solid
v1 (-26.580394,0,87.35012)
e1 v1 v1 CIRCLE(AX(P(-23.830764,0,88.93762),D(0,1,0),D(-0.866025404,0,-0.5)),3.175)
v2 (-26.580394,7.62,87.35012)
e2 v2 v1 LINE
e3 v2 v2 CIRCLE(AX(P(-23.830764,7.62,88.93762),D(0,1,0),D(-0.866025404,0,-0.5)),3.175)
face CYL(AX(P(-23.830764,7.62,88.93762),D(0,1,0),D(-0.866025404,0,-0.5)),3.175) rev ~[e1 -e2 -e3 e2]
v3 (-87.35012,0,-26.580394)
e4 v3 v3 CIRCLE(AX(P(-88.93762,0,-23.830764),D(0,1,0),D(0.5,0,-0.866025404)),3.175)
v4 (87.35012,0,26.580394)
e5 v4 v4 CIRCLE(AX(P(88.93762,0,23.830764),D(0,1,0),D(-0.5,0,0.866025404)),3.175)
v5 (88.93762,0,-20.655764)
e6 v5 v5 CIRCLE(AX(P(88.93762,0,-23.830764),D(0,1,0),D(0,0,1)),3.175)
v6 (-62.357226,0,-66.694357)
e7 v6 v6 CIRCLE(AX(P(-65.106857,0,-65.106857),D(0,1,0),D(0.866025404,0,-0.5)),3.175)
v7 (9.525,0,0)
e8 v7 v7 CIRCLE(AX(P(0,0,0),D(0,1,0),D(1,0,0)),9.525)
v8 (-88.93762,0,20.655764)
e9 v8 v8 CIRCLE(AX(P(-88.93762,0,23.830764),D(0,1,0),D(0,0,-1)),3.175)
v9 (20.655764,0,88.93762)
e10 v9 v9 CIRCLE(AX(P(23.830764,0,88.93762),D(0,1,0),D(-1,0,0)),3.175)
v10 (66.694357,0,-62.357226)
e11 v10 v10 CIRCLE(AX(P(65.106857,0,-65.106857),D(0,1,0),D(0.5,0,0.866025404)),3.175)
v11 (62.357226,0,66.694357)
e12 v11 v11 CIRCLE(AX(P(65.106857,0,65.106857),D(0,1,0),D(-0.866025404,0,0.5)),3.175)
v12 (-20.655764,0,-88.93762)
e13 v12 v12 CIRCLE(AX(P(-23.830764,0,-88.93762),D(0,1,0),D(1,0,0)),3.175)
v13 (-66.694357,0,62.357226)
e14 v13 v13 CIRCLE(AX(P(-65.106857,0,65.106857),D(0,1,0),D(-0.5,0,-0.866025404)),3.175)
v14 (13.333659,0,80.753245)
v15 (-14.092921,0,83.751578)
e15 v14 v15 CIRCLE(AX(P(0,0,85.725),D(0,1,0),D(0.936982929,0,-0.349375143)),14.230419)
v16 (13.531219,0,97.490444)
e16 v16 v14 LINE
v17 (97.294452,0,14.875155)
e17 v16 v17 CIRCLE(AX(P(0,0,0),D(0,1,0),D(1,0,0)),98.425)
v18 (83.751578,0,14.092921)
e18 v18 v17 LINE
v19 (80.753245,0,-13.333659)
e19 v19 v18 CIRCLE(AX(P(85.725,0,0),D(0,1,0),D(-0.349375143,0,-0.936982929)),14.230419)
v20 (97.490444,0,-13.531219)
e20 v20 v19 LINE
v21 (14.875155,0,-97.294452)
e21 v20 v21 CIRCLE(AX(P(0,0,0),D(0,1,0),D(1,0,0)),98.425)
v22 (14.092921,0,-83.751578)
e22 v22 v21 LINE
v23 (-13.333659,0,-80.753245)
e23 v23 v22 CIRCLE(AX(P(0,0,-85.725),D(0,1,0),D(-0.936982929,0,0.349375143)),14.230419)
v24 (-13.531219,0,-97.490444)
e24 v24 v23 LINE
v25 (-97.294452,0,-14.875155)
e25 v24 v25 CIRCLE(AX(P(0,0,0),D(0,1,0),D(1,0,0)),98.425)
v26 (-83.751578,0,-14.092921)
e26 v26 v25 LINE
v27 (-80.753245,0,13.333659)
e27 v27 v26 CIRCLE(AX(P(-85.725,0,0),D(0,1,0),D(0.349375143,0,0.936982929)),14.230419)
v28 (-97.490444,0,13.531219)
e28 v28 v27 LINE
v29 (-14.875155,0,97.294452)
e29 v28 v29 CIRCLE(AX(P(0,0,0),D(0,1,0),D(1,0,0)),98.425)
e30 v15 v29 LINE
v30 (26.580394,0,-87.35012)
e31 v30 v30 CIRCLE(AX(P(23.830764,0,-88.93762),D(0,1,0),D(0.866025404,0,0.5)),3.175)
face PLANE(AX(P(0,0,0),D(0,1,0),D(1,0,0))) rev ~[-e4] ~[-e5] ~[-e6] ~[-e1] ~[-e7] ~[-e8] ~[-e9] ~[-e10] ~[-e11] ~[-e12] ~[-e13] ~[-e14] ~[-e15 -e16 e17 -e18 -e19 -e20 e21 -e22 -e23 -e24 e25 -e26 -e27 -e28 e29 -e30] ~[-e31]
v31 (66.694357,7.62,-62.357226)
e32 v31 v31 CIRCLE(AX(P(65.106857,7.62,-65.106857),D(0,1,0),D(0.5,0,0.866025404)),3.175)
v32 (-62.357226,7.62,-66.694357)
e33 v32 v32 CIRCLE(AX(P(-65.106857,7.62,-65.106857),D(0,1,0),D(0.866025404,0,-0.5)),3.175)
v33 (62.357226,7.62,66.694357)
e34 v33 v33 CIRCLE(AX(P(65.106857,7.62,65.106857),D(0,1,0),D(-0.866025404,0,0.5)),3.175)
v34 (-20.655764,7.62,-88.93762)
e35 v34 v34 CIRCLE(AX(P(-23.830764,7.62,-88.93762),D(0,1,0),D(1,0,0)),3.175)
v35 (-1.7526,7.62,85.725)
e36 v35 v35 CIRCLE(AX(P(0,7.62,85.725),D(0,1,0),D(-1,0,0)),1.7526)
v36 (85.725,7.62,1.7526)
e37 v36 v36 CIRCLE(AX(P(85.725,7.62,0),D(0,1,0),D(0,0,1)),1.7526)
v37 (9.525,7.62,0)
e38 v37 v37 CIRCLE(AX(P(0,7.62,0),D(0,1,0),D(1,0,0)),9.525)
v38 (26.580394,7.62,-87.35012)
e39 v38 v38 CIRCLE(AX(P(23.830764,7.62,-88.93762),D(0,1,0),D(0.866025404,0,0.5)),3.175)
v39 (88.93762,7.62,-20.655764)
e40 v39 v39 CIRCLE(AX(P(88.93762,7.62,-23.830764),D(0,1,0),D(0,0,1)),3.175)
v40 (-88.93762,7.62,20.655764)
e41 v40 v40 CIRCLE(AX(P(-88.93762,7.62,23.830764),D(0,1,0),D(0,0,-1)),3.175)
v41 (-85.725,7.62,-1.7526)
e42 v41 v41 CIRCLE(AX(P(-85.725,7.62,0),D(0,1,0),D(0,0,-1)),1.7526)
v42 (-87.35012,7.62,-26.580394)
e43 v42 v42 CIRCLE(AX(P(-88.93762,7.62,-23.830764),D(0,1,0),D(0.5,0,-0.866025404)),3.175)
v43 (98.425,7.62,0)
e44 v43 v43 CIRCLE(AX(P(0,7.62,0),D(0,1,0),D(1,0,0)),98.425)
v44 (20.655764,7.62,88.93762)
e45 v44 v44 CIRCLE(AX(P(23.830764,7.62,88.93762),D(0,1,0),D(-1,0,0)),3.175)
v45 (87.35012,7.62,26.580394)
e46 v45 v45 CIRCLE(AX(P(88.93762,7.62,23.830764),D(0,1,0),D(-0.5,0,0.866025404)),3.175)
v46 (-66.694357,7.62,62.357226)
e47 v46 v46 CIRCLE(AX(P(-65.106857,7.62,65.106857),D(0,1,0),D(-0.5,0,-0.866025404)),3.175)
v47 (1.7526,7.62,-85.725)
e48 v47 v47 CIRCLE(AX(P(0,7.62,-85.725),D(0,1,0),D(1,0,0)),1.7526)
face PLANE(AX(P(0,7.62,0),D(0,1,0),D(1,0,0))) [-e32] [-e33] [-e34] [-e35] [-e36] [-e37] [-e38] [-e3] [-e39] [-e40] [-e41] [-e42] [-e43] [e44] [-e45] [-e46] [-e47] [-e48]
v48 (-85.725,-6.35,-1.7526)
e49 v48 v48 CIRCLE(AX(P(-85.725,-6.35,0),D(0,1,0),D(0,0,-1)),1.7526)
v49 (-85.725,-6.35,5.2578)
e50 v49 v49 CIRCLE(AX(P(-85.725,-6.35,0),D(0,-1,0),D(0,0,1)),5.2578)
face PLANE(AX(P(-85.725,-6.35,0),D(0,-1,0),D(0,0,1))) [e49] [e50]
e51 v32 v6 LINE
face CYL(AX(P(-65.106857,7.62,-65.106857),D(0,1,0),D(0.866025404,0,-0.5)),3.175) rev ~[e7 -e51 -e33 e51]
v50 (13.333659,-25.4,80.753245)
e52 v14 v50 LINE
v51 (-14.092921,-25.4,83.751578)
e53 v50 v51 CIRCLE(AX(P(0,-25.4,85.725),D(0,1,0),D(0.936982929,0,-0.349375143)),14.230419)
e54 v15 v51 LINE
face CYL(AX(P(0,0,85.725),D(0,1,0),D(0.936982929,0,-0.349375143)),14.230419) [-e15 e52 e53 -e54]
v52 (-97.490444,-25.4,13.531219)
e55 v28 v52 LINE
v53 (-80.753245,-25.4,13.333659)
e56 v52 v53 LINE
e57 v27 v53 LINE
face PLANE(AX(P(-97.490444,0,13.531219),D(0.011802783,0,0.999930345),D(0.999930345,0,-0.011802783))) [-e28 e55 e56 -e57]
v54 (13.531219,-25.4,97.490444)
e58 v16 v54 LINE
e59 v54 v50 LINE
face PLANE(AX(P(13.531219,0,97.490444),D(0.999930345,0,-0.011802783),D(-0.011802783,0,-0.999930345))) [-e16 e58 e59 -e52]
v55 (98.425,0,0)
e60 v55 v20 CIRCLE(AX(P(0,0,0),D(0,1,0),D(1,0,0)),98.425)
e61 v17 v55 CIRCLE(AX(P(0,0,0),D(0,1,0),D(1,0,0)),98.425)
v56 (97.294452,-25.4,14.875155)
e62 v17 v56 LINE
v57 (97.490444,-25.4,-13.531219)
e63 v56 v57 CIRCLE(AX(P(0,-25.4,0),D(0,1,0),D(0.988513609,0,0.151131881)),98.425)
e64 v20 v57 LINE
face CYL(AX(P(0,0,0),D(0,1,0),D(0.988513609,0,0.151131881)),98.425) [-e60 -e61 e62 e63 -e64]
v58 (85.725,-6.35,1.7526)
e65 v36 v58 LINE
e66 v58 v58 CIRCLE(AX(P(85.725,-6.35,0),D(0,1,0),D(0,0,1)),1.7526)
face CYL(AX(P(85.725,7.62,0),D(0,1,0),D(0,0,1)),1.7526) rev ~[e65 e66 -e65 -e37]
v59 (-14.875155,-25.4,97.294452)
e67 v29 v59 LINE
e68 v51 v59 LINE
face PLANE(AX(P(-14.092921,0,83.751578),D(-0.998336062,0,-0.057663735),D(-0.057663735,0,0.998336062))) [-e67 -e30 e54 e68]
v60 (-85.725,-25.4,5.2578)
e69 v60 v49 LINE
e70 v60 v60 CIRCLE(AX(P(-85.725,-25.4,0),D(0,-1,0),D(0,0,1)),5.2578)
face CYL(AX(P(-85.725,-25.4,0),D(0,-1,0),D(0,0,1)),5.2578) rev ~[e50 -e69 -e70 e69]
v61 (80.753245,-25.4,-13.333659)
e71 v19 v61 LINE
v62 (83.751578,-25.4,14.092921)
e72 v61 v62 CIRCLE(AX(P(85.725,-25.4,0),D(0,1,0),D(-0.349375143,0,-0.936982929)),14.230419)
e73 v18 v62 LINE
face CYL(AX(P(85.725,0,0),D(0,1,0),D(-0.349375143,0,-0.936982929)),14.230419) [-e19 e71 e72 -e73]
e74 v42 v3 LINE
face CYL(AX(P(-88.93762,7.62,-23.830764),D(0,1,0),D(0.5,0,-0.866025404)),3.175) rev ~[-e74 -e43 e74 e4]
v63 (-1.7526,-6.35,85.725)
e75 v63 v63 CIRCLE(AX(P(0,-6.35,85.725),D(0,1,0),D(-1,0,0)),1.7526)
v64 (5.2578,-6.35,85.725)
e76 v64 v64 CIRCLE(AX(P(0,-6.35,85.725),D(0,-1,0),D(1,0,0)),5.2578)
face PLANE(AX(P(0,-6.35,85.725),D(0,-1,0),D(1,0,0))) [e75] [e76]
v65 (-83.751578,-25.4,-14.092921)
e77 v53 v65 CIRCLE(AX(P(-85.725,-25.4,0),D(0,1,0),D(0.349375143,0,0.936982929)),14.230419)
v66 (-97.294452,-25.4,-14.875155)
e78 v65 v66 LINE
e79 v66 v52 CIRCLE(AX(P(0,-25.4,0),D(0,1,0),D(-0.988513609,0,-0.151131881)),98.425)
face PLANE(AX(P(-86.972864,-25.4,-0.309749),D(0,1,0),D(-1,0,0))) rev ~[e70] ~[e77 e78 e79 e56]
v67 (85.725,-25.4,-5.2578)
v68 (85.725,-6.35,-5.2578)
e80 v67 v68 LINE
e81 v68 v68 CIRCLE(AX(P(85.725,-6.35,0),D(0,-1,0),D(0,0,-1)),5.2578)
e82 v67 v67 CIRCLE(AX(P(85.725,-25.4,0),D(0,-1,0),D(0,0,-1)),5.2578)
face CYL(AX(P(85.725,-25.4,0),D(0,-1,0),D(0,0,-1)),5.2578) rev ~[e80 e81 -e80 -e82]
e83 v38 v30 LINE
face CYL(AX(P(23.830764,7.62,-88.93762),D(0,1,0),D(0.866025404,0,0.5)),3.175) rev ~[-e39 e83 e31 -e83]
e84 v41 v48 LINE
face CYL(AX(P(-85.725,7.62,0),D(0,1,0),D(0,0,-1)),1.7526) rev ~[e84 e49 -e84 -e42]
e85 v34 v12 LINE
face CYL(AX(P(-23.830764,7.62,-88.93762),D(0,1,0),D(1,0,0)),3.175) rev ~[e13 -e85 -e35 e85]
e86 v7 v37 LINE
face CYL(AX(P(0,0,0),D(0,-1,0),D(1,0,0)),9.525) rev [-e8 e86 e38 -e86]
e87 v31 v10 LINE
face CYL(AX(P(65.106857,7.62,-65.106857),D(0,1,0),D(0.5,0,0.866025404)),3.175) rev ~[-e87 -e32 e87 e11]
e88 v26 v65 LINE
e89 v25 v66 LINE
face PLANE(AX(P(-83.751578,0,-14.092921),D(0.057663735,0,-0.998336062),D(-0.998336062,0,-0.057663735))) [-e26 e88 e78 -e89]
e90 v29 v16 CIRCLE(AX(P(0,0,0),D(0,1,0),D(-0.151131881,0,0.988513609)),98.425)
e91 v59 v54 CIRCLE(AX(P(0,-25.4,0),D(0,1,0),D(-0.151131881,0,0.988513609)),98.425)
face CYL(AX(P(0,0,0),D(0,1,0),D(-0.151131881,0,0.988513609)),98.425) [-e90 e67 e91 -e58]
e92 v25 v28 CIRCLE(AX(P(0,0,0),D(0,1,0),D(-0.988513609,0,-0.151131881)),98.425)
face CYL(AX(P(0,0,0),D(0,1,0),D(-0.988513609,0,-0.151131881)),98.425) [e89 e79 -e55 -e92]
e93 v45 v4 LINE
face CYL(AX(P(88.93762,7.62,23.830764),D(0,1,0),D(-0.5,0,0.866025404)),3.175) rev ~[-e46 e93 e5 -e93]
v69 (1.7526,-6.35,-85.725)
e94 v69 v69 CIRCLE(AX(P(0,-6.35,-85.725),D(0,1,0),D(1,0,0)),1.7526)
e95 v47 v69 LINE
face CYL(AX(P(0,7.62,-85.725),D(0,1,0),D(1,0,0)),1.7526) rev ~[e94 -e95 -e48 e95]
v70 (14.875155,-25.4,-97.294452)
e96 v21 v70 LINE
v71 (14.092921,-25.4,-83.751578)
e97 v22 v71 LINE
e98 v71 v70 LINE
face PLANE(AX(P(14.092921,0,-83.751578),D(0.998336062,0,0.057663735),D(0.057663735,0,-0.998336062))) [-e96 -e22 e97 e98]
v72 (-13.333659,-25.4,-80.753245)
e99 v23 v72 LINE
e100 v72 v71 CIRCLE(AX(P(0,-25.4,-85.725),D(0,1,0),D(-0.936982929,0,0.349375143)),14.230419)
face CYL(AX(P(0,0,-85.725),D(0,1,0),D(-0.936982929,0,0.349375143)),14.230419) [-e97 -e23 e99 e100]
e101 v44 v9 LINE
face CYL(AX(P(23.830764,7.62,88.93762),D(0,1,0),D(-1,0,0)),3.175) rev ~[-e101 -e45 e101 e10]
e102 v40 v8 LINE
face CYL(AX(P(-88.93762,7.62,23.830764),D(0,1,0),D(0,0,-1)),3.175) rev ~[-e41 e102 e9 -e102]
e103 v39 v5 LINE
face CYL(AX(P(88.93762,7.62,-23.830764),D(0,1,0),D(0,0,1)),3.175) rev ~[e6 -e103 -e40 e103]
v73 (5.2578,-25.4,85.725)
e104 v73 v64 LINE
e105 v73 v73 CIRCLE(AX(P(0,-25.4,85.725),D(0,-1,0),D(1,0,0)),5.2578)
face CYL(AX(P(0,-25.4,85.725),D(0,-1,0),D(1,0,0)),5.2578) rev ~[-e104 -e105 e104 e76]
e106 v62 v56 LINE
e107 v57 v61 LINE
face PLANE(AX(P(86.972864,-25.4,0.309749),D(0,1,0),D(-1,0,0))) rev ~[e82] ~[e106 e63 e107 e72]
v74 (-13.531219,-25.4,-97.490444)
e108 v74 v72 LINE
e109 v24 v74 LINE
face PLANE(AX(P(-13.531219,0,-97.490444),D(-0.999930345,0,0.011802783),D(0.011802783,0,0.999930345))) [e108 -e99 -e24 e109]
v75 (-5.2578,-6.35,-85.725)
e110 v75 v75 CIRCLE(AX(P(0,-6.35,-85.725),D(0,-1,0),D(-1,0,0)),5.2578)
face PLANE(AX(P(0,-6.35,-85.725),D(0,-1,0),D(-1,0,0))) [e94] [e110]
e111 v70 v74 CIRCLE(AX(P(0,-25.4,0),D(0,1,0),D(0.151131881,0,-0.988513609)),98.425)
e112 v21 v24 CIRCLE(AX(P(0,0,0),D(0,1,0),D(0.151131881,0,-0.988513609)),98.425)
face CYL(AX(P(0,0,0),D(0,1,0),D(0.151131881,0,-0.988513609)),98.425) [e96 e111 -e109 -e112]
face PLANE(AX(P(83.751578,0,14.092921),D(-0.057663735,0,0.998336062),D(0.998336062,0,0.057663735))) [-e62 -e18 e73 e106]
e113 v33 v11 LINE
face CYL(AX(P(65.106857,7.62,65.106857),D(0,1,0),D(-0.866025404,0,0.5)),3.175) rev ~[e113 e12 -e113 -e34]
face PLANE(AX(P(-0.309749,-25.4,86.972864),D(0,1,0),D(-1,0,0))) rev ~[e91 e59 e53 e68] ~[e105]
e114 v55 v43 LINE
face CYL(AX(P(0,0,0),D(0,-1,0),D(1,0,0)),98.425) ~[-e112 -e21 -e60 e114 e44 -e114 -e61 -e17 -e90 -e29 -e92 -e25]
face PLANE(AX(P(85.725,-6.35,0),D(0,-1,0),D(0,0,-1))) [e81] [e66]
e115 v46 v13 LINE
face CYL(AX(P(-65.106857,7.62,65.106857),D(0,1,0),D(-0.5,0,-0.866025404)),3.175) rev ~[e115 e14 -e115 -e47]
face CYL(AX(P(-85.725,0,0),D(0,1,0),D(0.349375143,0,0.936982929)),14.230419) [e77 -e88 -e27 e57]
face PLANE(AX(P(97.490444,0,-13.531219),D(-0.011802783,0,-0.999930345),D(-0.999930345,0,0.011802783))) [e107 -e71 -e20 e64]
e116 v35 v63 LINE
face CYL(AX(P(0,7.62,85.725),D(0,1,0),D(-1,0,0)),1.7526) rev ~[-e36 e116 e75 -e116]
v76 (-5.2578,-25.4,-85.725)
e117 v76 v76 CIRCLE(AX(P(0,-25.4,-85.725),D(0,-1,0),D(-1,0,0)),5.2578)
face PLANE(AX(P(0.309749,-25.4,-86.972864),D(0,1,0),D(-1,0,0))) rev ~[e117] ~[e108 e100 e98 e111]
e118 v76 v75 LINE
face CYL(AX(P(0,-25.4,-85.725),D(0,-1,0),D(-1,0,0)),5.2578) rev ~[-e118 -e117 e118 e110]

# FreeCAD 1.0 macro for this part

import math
import FreeCAD as App
import Part
import Sketcher
Q = App.Units.Quantity

doc = App.newDocument("Part")
body = doc.addObject("PartDesign::Body", "Body")

sketch1 = body.newObject("Sketcher::SketchObject", "Sketch")
sketch1.AttachmentSupport = (doc.getObject("XZ_Plane"), [""])
sketch1.MapMode = "FlatFace"
sketch1.addGeometry([
    Part.Circle(App.Vector(0, 0, 0), App.Vector(0, 0, 1), 98),
    Part.Circle(App.Vector(0, 0, 0), App.Vector(0, 0, 1), 10),
], False)
sketch1.addConstraint([
    Sketcher.Constraint("Coincident", 0, 3, -1, 1),
    Sketcher.Constraint("Coincident", 1, 3, -1, 1),
    Sketcher.Constraint("Diameter", 0, Q("7.75 in")),
    Sketcher.Constraint("Diameter", 1, Q("0.75 in")),
])
pad1 = body.newObject("PartDesign::Pad", "Pad")
pad1.Profile = sketch1
pad1.Length = Q("0.3 in")
pad1.Reversed = True

sketch2 = body.newObject("Sketcher::SketchObject", "Sketch001")
sketch2.AttachmentSupport = (doc.getObject("XZ_Plane"), [""])
sketch2.MapMode = "FlatFace"
sketch2.addGeometry([
    Part.LineSegment(App.Vector(-15, 97, 0), App.Vector(-14, 84, 0)),
    Part.ArcOfCircle(Part.Circle(App.Vector(0, 86, 0), App.Vector(0, 0, 1), 14), math.radians(-172), math.radians(-20)),
    Part.LineSegment(App.Vector(13, 81, 0), App.Vector(14, 97, 0)),
    Part.ArcOfCircle(Part.Circle(App.Vector(0, 0, 0), App.Vector(0, 0, 1), 98), math.radians(82.1), math.radians(98.69)),
    Part.LineSegment(App.Vector(97, 15, 0), App.Vector(84, 14, 0)),
    Part.ArcOfCircle(Part.Circle(App.Vector(86, 0, 0), App.Vector(0, 0, 1), 14), math.radians(98), math.radians(250)),
    Part.LineSegment(App.Vector(81, -13, 0), App.Vector(97, -14, 0)),
    Part.ArcOfCircle(Part.Circle(App.Vector(0, 0, 0), App.Vector(0, 0, 1), 98), math.radians(-7.9), math.radians(8.69)),
    Part.LineSegment(App.Vector(15, -97, 0), App.Vector(14, -84, 0)),
    Part.ArcOfCircle(Part.Circle(App.Vector(0, -86, 0), App.Vector(0, 0, 1), 14), math.radians(8), math.radians(160)),
    Part.LineSegment(App.Vector(-13, -81, 0), App.Vector(-14, -97, 0)),
    Part.ArcOfCircle(Part.Circle(App.Vector(0, 0, 0), App.Vector(0, 0, 1), 98), math.radians(-97.9), math.radians(-81.31)),
    Part.LineSegment(App.Vector(-97, -15, 0), App.Vector(-84, -14, 0)),
    Part.ArcOfCircle(Part.Circle(App.Vector(-86, 0, 0), App.Vector(0, 0, 1), 14), math.radians(-82), math.radians(70)),
    Part.LineSegment(App.Vector(-81, 13, 0), App.Vector(-97, 14, 0)),
    Part.ArcOfCircle(Part.Circle(App.Vector(0, 0, 0), App.Vector(0, 0, 1), 98), math.radians(172.1), math.radians(188.69)),
], False)
sketch2.addConstraint([
    Sketcher.Constraint("Coincident", 0, 2, 1, 1),
    Sketcher.Constraint("Coincident", 1, 2, 2, 1),
    Sketcher.Constraint("Coincident", 2, 2, 3, 1),
    Sketcher.Constraint("Coincident", 3, 2, 0, 1),
    Sketcher.Constraint("Coincident", 4, 2, 5, 1),
    Sketcher.Constraint("Coincident", 5, 2, 6, 1),
    Sketcher.Constraint("Coincident", 6, 2, 7, 1),
    Sketcher.Constraint("Coincident", 7, 2, 4, 1),
    Sketcher.Constraint("Coincident", 8, 2, 9, 1),
    Sketcher.Constraint("Coincident", 9, 2, 10, 1),
    Sketcher.Constraint("Coincident", 10, 2, 11, 1),
    Sketcher.Constraint("Coincident", 11, 2, 8, 1),
    Sketcher.Constraint("Coincident", 12, 2, 13, 1),
    Sketcher.Constraint("Coincident", 13, 2, 14, 1),
    Sketcher.Constraint("Coincident", 14, 2, 15, 1),
    Sketcher.Constraint("Coincident", 15, 2, 12, 1),
    Sketcher.Constraint("Coincident", 3, 3, -1, 1),
    Sketcher.Constraint("Coincident", 7, 3, -1, 1),
    Sketcher.Constraint("Coincident", 11, 3, -1, 1),
    Sketcher.Constraint("Coincident", 15, 3, -1, 1),
    Sketcher.Constraint("Equal", 1, 5),
    Sketcher.Constraint("Equal", 3, 7),
    Sketcher.Constraint("Equal", 5, 9),
    Sketcher.Constraint("Equal", 7, 11),
    Sketcher.Constraint("Equal", 9, 13),
    Sketcher.Constraint("Equal", 11, 15),
    Sketcher.Constraint("Symmetric", 1, 3, 9, 3, -1, 1),
    Sketcher.Constraint("Symmetric", 5, 3, 13, 3, -1, 1),
    Sketcher.Constraint("PointOnObject", 1, 3, -2),
    Sketcher.Constraint("PointOnObject", 5, 3, -1),
    Sketcher.Constraint("Perpendicular", 0, 4),
    Sketcher.Constraint("Perpendicular", 2, 6),
    Sketcher.Constraint("Perpendicular", 4, 8),
    Sketcher.Constraint("Perpendicular", 6, 10),
    Sketcher.Constraint("Perpendicular", 8, 12),
    Sketcher.Constraint("Perpendicular", 10, 14),
    Sketcher.Constraint("Equal", 0, 4),
    Sketcher.Constraint("Equal", 2, 6),
    Sketcher.Constraint("Equal", 4, 8),
    Sketcher.Constraint("Equal", 6, 10),
    Sketcher.Constraint("Equal", 8, 12),
    Sketcher.Constraint("Equal", 10, 14),
    Sketcher.Constraint("Radius", 3, Q("3.875 in")),
    Sketcher.Constraint("DistanceY", 9, 3, 1, 3, Q("6.75 in")),
    Sketcher.Constraint("DistanceX", -1, 1, 5, 3, Q("3.375 in")),
    Sketcher.Constraint("Radius", 1, Q("14.230419 mm")),
    Sketcher.Constraint("DistanceY", 1, 2, 2, 2, Q("16.737199 mm")),
    Sketcher.Constraint("DistanceX", 0, 2, -1, 1, Q("14.092921 mm")),
    Sketcher.Constraint("DistanceX", -1, 1, 1, 2, Q("13.333659 mm")),
    Sketcher.Constraint("DistanceY", -1, 1, 3, 2, Q("97.294452 mm")),
])
pad2 = body.newObject("PartDesign::Pad", "Pad001")
pad2.Profile = sketch2
pad2.Length = Q("1 in")

sketch3 = body.newObject("Sketcher::SketchObject", "Sketch002")
sketch3.AttachmentSupport = (doc.getObject("XZ_Plane"), [""])
sketch3.MapMode = "FlatFace"
sketch3.AttachmentOffset = App.Placement(App.Vector(0, 0, 1 * 25.4), App.Rotation())
sketch3.addGeometry(Part.Circle(App.Vector(0, 86, 0), App.Vector(0, 0, 1), 5), False)
sketch3.addConstraint([
    Sketcher.Constraint("PointOnObject", 0, 3, -2),
    Sketcher.Constraint("Diameter", 0, Q("0.414 in")),
    Sketcher.Constraint("DistanceY", -1, 1, 0, 3, Q("3.375 in")),
])
pocket1 = body.newObject("PartDesign::Pocket", "Pocket")
pocket1.Profile = sketch3
pocket1.Length = Q("0.75 in")

sketch4 = body.newObject("Sketcher::SketchObject", "Sketch003")
sketch4.AttachmentSupport = (doc.getObject("XZ_Plane"), [""])
sketch4.MapMode = "FlatFace"
sketch4.AttachmentOffset = App.Placement(App.Vector(0, 0, -0.3 * 25.4), App.Rotation())
sketch4.addGeometry(Part.Circle(App.Vector(-23.8, -88.9, 0), App.Vector(0, 0, 1), 3.2), False)
sketch4.addConstraint([
    Sketcher.Constraint("Diameter", 0, Q("0.25 in")),
    Sketcher.Constraint("DistanceY", 0, 3, -1, 1, Q("88.93762 mm")),
    Sketcher.Constraint("DistanceX", 0, 3, -1, 1, Q("23.830764 mm")),
])
pocket2 = body.newObject("PartDesign::Pocket", "Pocket001")
pocket2.Profile = sketch4
pocket2.Length = Q("0.5 in")
pocket2.Reversed = True
doc.recompute()

polarpattern = body.newObject("PartDesign::PolarPattern", "PolarPattern")
polarpattern.Originals = [pocket2]
polarpattern.Axis = (doc.getObject("Y_Axis"), [""])
polarpattern.Angle = 360
polarpattern.Occurrences = 12
body.Tip = polarpattern
doc.recompute()

polarpattern2 = body.newObject("PartDesign::PolarPattern", "PolarPattern001")
polarpattern2.Originals = [pocket1]
polarpattern2.Axis = (doc.getObject("Y_Axis"), [""])
polarpattern2.Angle = 360
polarpattern2.Occurrences = 4
body.Tip = polarpattern2

sketch5 = body.newObject("Sketcher::SketchObject", "Sketch004")
sketch5.AttachmentSupport = (doc.getObject("XZ_Plane"), [""])
sketch5.MapMode = "FlatFace"
sketch5.AttachmentOffset = App.Placement(App.Vector(0, 0, -0.3 * 25.4), App.Rotation())
sketch5.addGeometry(Part.Circle(App.Vector(0, -85.7, 0), App.Vector(0, 0, 1), 1.8), False)
sketch5.addConstraint([
    Sketcher.Constraint("PointOnObject", 0, 3, -2),
    Sketcher.Constraint("Diameter", 0, Q("0.138 in")),
    Sketcher.Constraint("DistanceY", 0, 3, -1, 1, Q("3.375 in")),
])
pocket3 = body.newObject("PartDesign::Pocket", "Pocket002")
pocket3.Profile = sketch5
pocket3.Type = "ThroughAll"
pocket3.Reversed = True
doc.recompute()

polarpattern3 = body.newObject("PartDesign::PolarPattern", "PolarPattern002")
polarpattern3.Originals = [pocket3]
polarpattern3.Axis = (doc.getObject("Y_Axis"), [""])
polarpattern3.Angle = 360
polarpattern3.Occurrences = 4
body.Tip = polarpattern3

doc.recompute()
